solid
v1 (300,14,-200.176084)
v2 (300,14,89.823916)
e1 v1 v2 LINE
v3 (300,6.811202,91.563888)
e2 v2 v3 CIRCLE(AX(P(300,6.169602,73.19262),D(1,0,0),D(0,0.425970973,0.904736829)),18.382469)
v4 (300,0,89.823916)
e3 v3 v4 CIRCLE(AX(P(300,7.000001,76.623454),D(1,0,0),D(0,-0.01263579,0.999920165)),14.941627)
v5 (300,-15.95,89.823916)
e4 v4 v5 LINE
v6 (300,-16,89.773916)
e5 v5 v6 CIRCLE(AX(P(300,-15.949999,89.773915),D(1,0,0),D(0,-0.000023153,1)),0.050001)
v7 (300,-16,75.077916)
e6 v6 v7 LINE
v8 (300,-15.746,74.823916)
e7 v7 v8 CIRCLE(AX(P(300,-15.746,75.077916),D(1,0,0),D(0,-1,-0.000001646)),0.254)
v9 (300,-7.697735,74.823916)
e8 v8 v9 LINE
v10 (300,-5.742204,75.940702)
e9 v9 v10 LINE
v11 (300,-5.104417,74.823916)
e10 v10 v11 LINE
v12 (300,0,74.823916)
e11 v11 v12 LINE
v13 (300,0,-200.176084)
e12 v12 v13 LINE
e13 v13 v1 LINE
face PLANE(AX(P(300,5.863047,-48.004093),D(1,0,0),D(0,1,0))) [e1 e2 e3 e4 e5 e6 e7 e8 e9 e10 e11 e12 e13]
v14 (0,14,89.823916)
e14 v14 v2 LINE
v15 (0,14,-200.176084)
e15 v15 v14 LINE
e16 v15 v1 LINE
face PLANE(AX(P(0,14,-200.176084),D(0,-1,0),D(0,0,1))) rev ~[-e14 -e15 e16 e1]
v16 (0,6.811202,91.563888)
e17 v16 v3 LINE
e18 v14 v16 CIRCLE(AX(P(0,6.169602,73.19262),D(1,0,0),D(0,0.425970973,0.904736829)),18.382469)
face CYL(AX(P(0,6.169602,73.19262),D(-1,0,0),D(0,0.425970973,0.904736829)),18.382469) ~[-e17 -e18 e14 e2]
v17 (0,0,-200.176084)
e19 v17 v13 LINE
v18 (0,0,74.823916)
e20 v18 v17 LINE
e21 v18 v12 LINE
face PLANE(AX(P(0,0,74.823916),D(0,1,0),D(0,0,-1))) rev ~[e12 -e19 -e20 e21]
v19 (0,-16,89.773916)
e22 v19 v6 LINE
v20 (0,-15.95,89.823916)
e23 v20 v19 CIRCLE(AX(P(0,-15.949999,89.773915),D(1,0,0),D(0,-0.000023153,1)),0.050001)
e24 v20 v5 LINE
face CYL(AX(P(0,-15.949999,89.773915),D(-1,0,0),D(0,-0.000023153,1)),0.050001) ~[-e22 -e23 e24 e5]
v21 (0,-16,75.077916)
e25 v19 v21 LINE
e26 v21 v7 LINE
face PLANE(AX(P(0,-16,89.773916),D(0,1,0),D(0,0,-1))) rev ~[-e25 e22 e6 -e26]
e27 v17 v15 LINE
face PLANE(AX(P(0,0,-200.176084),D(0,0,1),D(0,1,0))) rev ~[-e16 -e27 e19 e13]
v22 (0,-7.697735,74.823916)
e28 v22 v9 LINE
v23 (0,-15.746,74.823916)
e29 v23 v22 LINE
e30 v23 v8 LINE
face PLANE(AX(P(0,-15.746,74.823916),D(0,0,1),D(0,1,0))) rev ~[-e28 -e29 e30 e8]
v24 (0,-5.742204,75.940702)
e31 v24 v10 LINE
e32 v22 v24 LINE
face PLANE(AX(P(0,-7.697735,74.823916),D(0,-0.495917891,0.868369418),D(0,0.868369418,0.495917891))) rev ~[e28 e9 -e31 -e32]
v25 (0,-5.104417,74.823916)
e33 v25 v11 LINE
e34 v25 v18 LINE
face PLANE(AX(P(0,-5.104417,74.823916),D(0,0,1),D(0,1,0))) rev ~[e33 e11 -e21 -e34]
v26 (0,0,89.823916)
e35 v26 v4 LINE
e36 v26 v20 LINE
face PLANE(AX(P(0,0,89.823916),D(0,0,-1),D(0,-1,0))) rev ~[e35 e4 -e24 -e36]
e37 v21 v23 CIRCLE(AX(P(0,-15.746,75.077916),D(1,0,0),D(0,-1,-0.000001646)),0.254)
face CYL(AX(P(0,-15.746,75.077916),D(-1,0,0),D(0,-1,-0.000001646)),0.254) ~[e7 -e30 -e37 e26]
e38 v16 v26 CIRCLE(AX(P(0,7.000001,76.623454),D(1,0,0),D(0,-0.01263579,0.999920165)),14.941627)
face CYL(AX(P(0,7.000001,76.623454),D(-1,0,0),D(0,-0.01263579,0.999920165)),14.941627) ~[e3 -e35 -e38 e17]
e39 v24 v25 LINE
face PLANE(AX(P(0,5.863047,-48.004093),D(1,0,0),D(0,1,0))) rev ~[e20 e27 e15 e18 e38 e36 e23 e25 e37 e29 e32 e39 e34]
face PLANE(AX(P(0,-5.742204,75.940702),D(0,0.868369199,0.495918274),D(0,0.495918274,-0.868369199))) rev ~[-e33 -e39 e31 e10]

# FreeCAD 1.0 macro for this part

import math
import FreeCAD as App
import Part
import Sketcher
Q = App.Units.Quantity

doc = App.newDocument("Part")
body = doc.addObject("PartDesign::Body", "Body")

# Sketch on YZ plane
sketch1 = body.newObject("Sketcher::SketchObject", "Sketch")
sketch1.AttachmentSupport = (doc.getObject("YZ_Plane"), [""])
sketch1.MapMode = "FlatFace"
sketch1.addGeometry(Part.LineSegment(App.Vector(0, 74.82, 0), App.Vector(0, -200.18, 0)), False)
sketch1.addGeometry(Part.LineSegment(App.Vector(0, -200.18, 0), App.Vector(14, -200.18, 0)), False)
sketch1.addGeometry(Part.LineSegment(App.Vector(14, -200.18, 0), App.Vector(14, 89.82, 0)), False)
sketch1.addGeometry(Part.ArcOfCircle(Part.Circle(App.Vector(6.17, 73.19, 0), App.Vector(0, 0, 1), 18.38), math.radians(65), math.radians(88)), False)
sketch1.addGeometry(Part.ArcOfCircle(Part.Circle(App.Vector(7, 76.62, 0), App.Vector(0, 0, 1), 14.94), math.radians(91), math.radians(118)), False)
sketch1.addGeometry(Part.LineSegment(App.Vector(0, 89.82, 0), App.Vector(-15.95, 89.82, 0)), False)
sketch1.addGeometry(Part.ArcOfCircle(Part.Circle(App.Vector(-15.95, 89.77, 0), App.Vector(0, 0, 1), 0.05), math.radians(90), math.radians(180)), False)
sketch1.addGeometry(Part.LineSegment(App.Vector(-16, 89.77, 0), App.Vector(-16, 75.08, 0)), False)
sketch1.addGeometry(Part.ArcOfCircle(Part.Circle(App.Vector(-15.75, 75.08, 0), App.Vector(0, 0, 1), 0.25), math.radians(-180), math.radians(-90)), False)
sketch1.addGeometry(Part.LineSegment(App.Vector(-15.75, 74.82, 0), App.Vector(-7.7, 74.82, 0)), False)
sketch1.addGeometry(Part.LineSegment(App.Vector(-7.7, 74.82, 0), App.Vector(-5.74, 75.94, 0)), False)
sketch1.addGeometry(Part.LineSegment(App.Vector(-5.74, 75.94, 0), App.Vector(-5.1, 74.82, 0)), False)
sketch1.addGeometry(Part.LineSegment(App.Vector(-5.1, 74.82, 0), App.Vector(0, 74.82, 0)), False)
sketch1.addConstraint(Sketcher.Constraint("Coincident", 0, 2, 1, 1))
sketch1.addConstraint(Sketcher.Constraint("Coincident", 1, 2, 2, 1))
sketch1.addConstraint(Sketcher.Constraint("Coincident", 2, 2, 3, 1))
sketch1.addConstraint(Sketcher.Constraint("Coincident", 3, 2, 4, 1))
sketch1.addConstraint(Sketcher.Constraint("Coincident", 4, 2, 5, 1))
sketch1.addConstraint(Sketcher.Constraint("Coincident", 5, 2, 6, 1))
sketch1.addConstraint(Sketcher.Constraint("Coincident", 6, 2, 7, 1))
sketch1.addConstraint(Sketcher.Constraint("Tangent", 7, 2, 8, 1))
sketch1.addConstraint(Sketcher.Constraint("Tangent", 8, 2, 9, 1))
sketch1.addConstraint(Sketcher.Constraint("Coincident", 9, 2, 10, 1))
sketch1.addConstraint(Sketcher.Constraint("Coincident", 10, 2, 11, 1))
sketch1.addConstraint(Sketcher.Constraint("Coincident", 11, 2, 12, 1))
sketch1.addConstraint(Sketcher.Constraint("Coincident", 12, 2, 0, 1))
sketch1.addConstraint(Sketcher.Constraint("Vertical", 0))
sketch1.addConstraint(Sketcher.Constraint("Horizontal", 1))
sketch1.addConstraint(Sketcher.Constraint("Vertical", 2))
sketch1.addConstraint(Sketcher.Constraint("Horizontal", 5))
sketch1.addConstraint(Sketcher.Constraint("Vertical", 7))
sketch1.addConstraint(Sketcher.Constraint("Horizontal", 9))
sketch1.addConstraint(Sketcher.Constraint("Horizontal", 12))
sketch1.addConstraint(Sketcher.Constraint("PointOnObject", 0, 2, -2))
sketch1.addConstraint(Sketcher.Constraint("PointOnObject", 4, 2, -2))
sketch1.addConstraint(Sketcher.Constraint("Perpendicular", 10, 11))
sketch1.addConstraint(Sketcher.Constraint("Horizontal", 2, 2, 4, 2))
sketch1.addConstraint(Sketcher.Constraint("Horizontal", 9, 2, 11, 2))
sketch1.addConstraint(Sketcher.Constraint("Vertical", 6, 3, 5, 2))
sketch1.addConstraint(Sketcher.Constraint("DistanceX", 1, 1, 1, 2, Q("14 mm")))
sketch1.addConstraint(Sketcher.Constraint("DistanceY", 0, 2, 0, 1, Q("275 mm")))
sketch1.addConstraint(Sketcher.Constraint("DistanceY", 2, 1, 2, 2, Q("290 mm")))
sketch1.addConstraint(Sketcher.Constraint("Radius", 6, Q("0.050001 mm")))
sketch1.addConstraint(Sketcher.Constraint("DistanceX", -1, 1, 4, 3, Q("7.000001 mm")))
sketch1.addConstraint(Sketcher.Constraint("DistanceX", 6, 2, -1, 1, Q("16 mm")))
sketch1.addConstraint(Sketcher.Constraint("Radius", 8, Q("0.254 mm")))
sketch1.addConstraint(Sketcher.Constraint("DistanceY", 7, 2, 7, 1, Q("14.696 mm")))
sketch1.addConstraint(Sketcher.Constraint("Radius", 3, Q("18.382469 mm")))
sketch1.addConstraint(Sketcher.Constraint("Radius", 4, Q("14.941627 mm")))
sketch1.addConstraint(Sketcher.Constraint("DistanceY", -1, 1, 10, 2, Q("75.940702 mm")))
sketch1.addConstraint(Sketcher.Constraint("DistanceX", 3, 3, 4, 3, Q("0.830399 mm")))
sketch1.addConstraint(Sketcher.Constraint("DistanceX", 9, 1, 9, 2, Q("8.048265 mm")))
sketch1.addConstraint(Sketcher.Constraint("DistanceX", 12, 1, 12, 2, Q("5.104417 mm")))
sketch1.addConstraint(Sketcher.Constraint("DistanceY", -1, 1, 3, 3, Q("73.19262 mm")))
pad1 = body.newObject("PartDesign::Pad", "Pad")
pad1.Profile = sketch1
pad1.Length = 300

doc.recompute()
